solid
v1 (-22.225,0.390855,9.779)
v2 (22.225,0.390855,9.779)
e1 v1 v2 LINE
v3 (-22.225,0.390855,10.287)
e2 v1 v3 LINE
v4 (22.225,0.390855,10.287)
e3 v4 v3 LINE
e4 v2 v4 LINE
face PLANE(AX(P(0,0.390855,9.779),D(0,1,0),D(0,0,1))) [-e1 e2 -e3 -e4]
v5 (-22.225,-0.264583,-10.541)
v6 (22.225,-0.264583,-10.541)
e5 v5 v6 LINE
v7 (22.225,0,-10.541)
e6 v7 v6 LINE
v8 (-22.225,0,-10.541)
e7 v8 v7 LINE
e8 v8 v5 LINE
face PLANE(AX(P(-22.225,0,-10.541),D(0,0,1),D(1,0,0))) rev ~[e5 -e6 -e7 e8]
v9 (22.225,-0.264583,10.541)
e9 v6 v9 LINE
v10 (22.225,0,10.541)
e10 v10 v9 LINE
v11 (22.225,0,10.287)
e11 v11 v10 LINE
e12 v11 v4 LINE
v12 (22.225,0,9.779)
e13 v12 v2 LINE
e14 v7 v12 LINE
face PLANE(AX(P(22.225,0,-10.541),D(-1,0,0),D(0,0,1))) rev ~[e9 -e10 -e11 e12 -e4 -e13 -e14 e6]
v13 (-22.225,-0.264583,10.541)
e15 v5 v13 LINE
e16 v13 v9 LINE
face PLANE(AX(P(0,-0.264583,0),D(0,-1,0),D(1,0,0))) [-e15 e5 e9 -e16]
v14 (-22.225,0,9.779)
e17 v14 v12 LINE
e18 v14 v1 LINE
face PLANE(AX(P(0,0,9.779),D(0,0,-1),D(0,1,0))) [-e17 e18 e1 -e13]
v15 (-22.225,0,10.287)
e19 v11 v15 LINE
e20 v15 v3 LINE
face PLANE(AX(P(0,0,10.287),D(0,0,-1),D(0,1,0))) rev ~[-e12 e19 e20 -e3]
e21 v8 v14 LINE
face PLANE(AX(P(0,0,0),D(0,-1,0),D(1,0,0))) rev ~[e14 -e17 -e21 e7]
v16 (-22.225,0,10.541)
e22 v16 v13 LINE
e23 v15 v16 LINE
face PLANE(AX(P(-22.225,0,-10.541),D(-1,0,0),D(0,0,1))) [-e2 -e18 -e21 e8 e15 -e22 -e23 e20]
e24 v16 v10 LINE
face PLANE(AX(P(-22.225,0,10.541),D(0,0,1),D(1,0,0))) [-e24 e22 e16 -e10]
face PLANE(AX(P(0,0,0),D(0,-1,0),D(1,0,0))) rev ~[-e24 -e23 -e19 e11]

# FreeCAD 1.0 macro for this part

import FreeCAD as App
import Part
import Sketcher
Q = App.Units.Quantity


def add_polygon(sketch, points):
    """Adds a closed chain of lines whose ends are joined by coincident constraints."""
    first, n = sketch.GeometryCount, len(points)
    for a, b in zip(points, points[1:] + points[:1]):
        sketch.addGeometry(Part.LineSegment(App.Vector(*a, 0), App.Vector(*b, 0)), False)
    for i in range(n):
        sketch.addConstraint(Sketcher.Constraint("Coincident", first + i, 2, first + (i + 1) % n, 1))

doc = App.newDocument("Part")
body = doc.addObject("PartDesign::Body", "Body")

# Sketch on XZ plane
sketch1 = doc.addObject("Sketcher::SketchObject", "Sketch")
body.addObject(sketch1)
sketch1.AttachmentSupport = (doc.XZ_Plane, [""])
sketch1.MapMode = "FlatFace"
add_polygon(sketch1, [(-22, 11), (-22, -11), (22, -11), (22, 11)])  # lines 0-3
sketch1.addConstraint([
    Sketcher.Constraint("Vertical", 0),
    Sketcher.Constraint("Horizontal", 1),
    Sketcher.Constraint("Vertical", 2),
    Sketcher.Constraint("Horizontal", 3),
    Sketcher.Constraint("Symmetric", 0, 2, 2, 2, -1, 1),
    Sketcher.Constraint("DistanceX", 1, 1, 1, 2, Q("1.75 in")),
    Sketcher.Constraint("DistanceY", 0, 2, 0, 1, Q("0.83 in")),
])
pad1 = doc.addObject("PartDesign::Pad", "Pad")
body.addObject(pad1)
pad1.Profile = sketch1
pad1.Length = 0.264583

# Sketch on YZ plane
sketch2 = doc.addObject("Sketcher::SketchObject", "Sketch001")
body.addObject(sketch2)
sketch2.AttachmentSupport = (doc.YZ_Plane, [""])
sketch2.MapMode = "FlatFace"
add_polygon(sketch2, [(0, 10.29), (0, 9.78), (0.39, 9.78), (0.39, 10.29)])  # lines 0-3
sketch2.addConstraint([
    Sketcher.Constraint("Vertical", 0),
    Sketcher.Constraint("Horizontal", 1),
    Sketcher.Constraint("Vertical", 2),
    Sketcher.Constraint("Horizontal", 3),
    Sketcher.Constraint("PointOnObject", 0, 2, -2),
    Sketcher.Constraint("DistanceY", 0, 2, 0, 1, Q("0.02 in")),
    Sketcher.Constraint("DistanceY", -1, 1, 0, 2, Q("0.385 in")),
    Sketcher.Constraint("DistanceX", 1, 1, 1, 2, Q("0.390855 mm")),
])
pad2 = doc.addObject("PartDesign::Pad", "Pad001")
body.addObject(pad2)
pad2.Profile = sketch2
pad2.Length = Q("1.75 in")
pad2.Midplane = True

doc.recompute()
